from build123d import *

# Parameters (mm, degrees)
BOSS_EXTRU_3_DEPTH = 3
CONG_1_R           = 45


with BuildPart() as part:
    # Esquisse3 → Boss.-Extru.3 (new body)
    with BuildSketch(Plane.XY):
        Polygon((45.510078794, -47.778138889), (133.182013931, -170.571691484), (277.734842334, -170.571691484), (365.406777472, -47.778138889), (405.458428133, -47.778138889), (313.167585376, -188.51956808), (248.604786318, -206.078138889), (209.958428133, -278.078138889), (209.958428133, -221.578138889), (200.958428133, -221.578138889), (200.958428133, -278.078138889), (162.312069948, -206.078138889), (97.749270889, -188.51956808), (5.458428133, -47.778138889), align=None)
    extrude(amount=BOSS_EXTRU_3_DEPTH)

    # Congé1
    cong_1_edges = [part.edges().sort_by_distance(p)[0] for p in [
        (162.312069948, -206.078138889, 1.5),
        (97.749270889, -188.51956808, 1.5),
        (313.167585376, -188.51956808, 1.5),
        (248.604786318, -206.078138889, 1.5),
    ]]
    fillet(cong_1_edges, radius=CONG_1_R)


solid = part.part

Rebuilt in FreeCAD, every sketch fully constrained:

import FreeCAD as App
import Part
import Sketcher
from FreeCAD import Vector
Q = App.Units.Quantity


def edges_at(feature, points):
    """Names of the edges that pass closest to the given points."""
    edges = feature.Shape.Edges
    near = lambda p: min(range(len(edges)), key=lambda i: edges[i].distToShape(Part.Vertex(*p))[0])
    return sorted({f"Edge{near(p) + 1}" for p in points})

doc = App.newDocument("Part")
body = doc.addObject("PartDesign::Body", "Body")

sketch1 = body.newObject("Sketcher::SketchObject", "Sketch")
sketch1.AttachmentSupport = (doc.getObject("XY_Plane"), [""])
sketch1.MapMode = "FlatFace"
sketch1.addGeometry(Part.LineSegment(Vector(133, -171, 0), Vector(46, -48, 0)), False)
sketch1.addGeometry(Part.LineSegment(Vector(46, -48, 0), Vector(5, -48, 0)), False)
sketch1.addGeometry(Part.LineSegment(Vector(5, -48, 0), Vector(98, -189, 0)), False)
sketch1.addGeometry(Part.LineSegment(Vector(98, -189, 0), Vector(162, -206, 0)), False)
sketch1.addGeometry(Part.LineSegment(Vector(162, -206, 0), Vector(201, -278, 0)), False)
sketch1.addGeometry(Part.LineSegment(Vector(201, -278, 0), Vector(201, -222, 0)), False)
sketch1.addGeometry(Part.LineSegment(Vector(201, -222, 0), Vector(210, -222, 0)), False)
sketch1.addGeometry(Part.LineSegment(Vector(210, -222, 0), Vector(210, -278, 0)), False)
sketch1.addGeometry(Part.LineSegment(Vector(210, -278, 0), Vector(249, -206, 0)), False)
sketch1.addGeometry(Part.LineSegment(Vector(249, -206, 0), Vector(313, -189, 0)), False)
sketch1.addGeometry(Part.LineSegment(Vector(313, -189, 0), Vector(405, -48, 0)), False)
sketch1.addGeometry(Part.LineSegment(Vector(405, -48, 0), Vector(365, -48, 0)), False)
sketch1.addGeometry(Part.LineSegment(Vector(365, -48, 0), Vector(278, -171, 0)), False)
sketch1.addGeometry(Part.LineSegment(Vector(278, -171, 0), Vector(133, -171, 0)), False)
sketch1.addConstraint(Sketcher.Constraint("Coincident", 0, 2, 1, 1))
sketch1.addConstraint(Sketcher.Constraint("Coincident", 1, 2, 2, 1))
sketch1.addConstraint(Sketcher.Constraint("Coincident", 2, 2, 3, 1))
sketch1.addConstraint(Sketcher.Constraint("Coincident", 3, 2, 4, 1))
sketch1.addConstraint(Sketcher.Constraint("Coincident", 4, 2, 5, 1))
sketch1.addConstraint(Sketcher.Constraint("Coincident", 5, 2, 6, 1))
sketch1.addConstraint(Sketcher.Constraint("Coincident", 6, 2, 7, 1))
sketch1.addConstraint(Sketcher.Constraint("Coincident", 7, 2, 8, 1))
sketch1.addConstraint(Sketcher.Constraint("Coincident", 8, 2, 9, 1))
sketch1.addConstraint(Sketcher.Constraint("Coincident", 9, 2, 10, 1))
sketch1.addConstraint(Sketcher.Constraint("Coincident", 10, 2, 11, 1))
sketch1.addConstraint(Sketcher.Constraint("Coincident", 11, 2, 12, 1))
sketch1.addConstraint(Sketcher.Constraint("Coincident", 12, 2, 13, 1))
sketch1.addConstraint(Sketcher.Constraint("Coincident", 13, 2, 0, 1))
sketch1.addConstraint(Sketcher.Constraint("Horizontal", 1))
sketch1.addConstraint(Sketcher.Constraint("Vertical", 5))
sketch1.addConstraint(Sketcher.Constraint("Horizontal", 6))
sketch1.addConstraint(Sketcher.Constraint("Vertical", 7))
sketch1.addConstraint(Sketcher.Constraint("Horizontal", 11))
sketch1.addConstraint(Sketcher.Constraint("Horizontal", 13))
sketch1.addConstraint(Sketcher.Constraint("Horizontal", 4, 2, 7, 2))
sketch1.addConstraint(Sketcher.Constraint("Horizontal", 3, 2, 8, 2))
sketch1.addConstraint(Sketcher.Constraint("Horizontal", 2, 2, 9, 2))
sketch1.addConstraint(Sketcher.Constraint("Horizontal", 1, 2, 10, 2))
sketch1.addConstraint(Sketcher.Constraint("Equal", 1, 11))
sketch1.addConstraint(Sketcher.Constraint("Equal", 4, 8))
sketch1.addConstraint(Sketcher.Constraint("Equal", 3, 9))
sketch1.addConstraint(Sketcher.Constraint("Equal", 2, 10))
sketch1.addConstraint(Sketcher.Constraint("Equal", 0, 12))
sketch1.addConstraint(Sketcher.Constraint("DistanceX", 6, 1, 6, 2, Q("9 mm")))
sketch1.addConstraint(Sketcher.Constraint("DistanceY", 5, 1, 5, 2, Q("56.5 mm")))
sketch1.addConstraint(Sketcher.Constraint("DistanceY", 4, 2, 3, 2, Q("72 mm")))
sketch1.addConstraint(Sketcher.Constraint("DistanceY", 3, 2, 0, 2, Q("158.3 mm")))
sketch1.addConstraint(Sketcher.Constraint("DistanceX", 1, 2, 4, 2, Q("195.5 mm")))
sketch1.addConstraint(Sketcher.Constraint("DistanceX", 1, 2, 1, 1, Q("40.051651 mm")))
sketch1.addConstraint(Sketcher.Constraint("DistanceX", 13, 2, 13, 1, Q("144.552828 mm")))
sketch1.addConstraint(Sketcher.Constraint("DistanceX", 2, 2, 3, 2, Q("64.562799 mm")))
sketch1.addConstraint(Sketcher.Constraint("DistanceX", -1, 1, 0, 2, Q("45.510079 mm")))
sketch1.addConstraint(Sketcher.Constraint("DistanceY", 0, 2, -1, 1, Q("47.778139 mm")))
sketch1.addConstraint(Sketcher.Constraint("DistanceX", -1, 1, 2, 2, Q("97.749271 mm")))
sketch1.addConstraint(Sketcher.Constraint("DistanceY", 2, 2, -1, 1, Q("188.519568 mm")))
sketch1.addConstraint(Sketcher.Constraint("DistanceY", 12, 2, -1, 1, Q("170.571691 mm")))
pad1 = body.newObject("PartDesign::Pad", "Pad")
pad1.Profile = sketch1
pad1.Length = 3
doc.recompute()

fillet = body.newObject("PartDesign::Fillet", "Fillet")
fillet.Base = (pad1, edges_at(pad1, [
    (162.312, -206.078, 1.5),
    (97.749, -188.52, 1.5),
    (313.168, -188.52, 1.5),
    (248.605, -206.078, 1.5),
]))
fillet.Radius = 45

doc.recompute()
